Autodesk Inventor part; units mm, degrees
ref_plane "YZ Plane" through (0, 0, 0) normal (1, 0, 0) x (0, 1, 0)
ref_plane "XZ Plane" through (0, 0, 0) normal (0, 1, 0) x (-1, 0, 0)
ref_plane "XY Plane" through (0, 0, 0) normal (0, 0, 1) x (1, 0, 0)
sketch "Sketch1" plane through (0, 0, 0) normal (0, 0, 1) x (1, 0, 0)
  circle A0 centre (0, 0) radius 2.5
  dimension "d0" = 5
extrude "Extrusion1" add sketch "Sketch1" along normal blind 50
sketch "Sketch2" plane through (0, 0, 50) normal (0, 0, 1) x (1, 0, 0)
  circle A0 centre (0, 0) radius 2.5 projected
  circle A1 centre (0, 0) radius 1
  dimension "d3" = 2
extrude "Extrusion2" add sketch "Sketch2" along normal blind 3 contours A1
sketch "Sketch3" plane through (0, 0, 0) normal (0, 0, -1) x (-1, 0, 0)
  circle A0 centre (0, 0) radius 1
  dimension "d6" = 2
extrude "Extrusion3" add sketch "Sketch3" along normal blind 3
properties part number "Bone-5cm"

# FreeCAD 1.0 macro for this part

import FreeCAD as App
import Part
import Sketcher

doc = App.newDocument("Part")
body = doc.addObject("PartDesign::Body", "Body")

sketch1 = body.newObject("Sketcher::SketchObject", "Sketch")
sketch1.AttachmentSupport = (doc.getObject("XY_Plane"), [""])
sketch1.MapMode = "FlatFace"
sketch1.addGeometry(Part.Circle(App.Vector(0, 0, 0), App.Vector(0, 0, 1), 2.5), False)
sketch1.addConstraint(Sketcher.Constraint("Coincident", 0, 3, -1, 1))
sketch1.addConstraint(Sketcher.Constraint("Diameter", 0, 5.0))
pad1 = body.newObject("PartDesign::Pad", "Pad")
pad1.Profile = sketch1
pad1.Length = 50

sketch2 = body.newObject("Sketcher::SketchObject", "Sketch001")
sketch2.AttachmentSupport = (doc.getObject("XY_Plane"), [""])
sketch2.MapMode = "FlatFace"
sketch2.AttachmentOffset = App.Placement(App.Vector(0, 0, 50), App.Rotation())
sketch2.addGeometry(Part.Circle(App.Vector(0, 0, 0), App.Vector(0, 0, 1), 1), False)
sketch2.addConstraint(Sketcher.Constraint("Coincident", 0, 3, -1, 1))
sketch2.addConstraint(Sketcher.Constraint("Diameter", 0, 2.0))
pad2 = body.newObject("PartDesign::Pad", "Pad001")
pad2.Profile = sketch2
pad2.Length = 3

sketch3 = body.newObject("Sketcher::SketchObject", "Sketch002")
sketch3.AttachmentSupport = (doc.getObject("XY_Plane"), [""])
sketch3.MapMode = "FlatFace"
sketch3.addGeometry(Part.Circle(App.Vector(0, 0, 0), App.Vector(0, 0, 1), 1), False)
sketch3.addConstraint(Sketcher.Constraint("Coincident", 0, 3, -1, 1))
sketch3.addConstraint(Sketcher.Constraint("Diameter", 0, 2.0))
pad3 = body.newObject("PartDesign::Pad", "Pad002")
pad3.Profile = sketch3
pad3.Length = 3
pad3.Reversed = True

doc.recompute()
